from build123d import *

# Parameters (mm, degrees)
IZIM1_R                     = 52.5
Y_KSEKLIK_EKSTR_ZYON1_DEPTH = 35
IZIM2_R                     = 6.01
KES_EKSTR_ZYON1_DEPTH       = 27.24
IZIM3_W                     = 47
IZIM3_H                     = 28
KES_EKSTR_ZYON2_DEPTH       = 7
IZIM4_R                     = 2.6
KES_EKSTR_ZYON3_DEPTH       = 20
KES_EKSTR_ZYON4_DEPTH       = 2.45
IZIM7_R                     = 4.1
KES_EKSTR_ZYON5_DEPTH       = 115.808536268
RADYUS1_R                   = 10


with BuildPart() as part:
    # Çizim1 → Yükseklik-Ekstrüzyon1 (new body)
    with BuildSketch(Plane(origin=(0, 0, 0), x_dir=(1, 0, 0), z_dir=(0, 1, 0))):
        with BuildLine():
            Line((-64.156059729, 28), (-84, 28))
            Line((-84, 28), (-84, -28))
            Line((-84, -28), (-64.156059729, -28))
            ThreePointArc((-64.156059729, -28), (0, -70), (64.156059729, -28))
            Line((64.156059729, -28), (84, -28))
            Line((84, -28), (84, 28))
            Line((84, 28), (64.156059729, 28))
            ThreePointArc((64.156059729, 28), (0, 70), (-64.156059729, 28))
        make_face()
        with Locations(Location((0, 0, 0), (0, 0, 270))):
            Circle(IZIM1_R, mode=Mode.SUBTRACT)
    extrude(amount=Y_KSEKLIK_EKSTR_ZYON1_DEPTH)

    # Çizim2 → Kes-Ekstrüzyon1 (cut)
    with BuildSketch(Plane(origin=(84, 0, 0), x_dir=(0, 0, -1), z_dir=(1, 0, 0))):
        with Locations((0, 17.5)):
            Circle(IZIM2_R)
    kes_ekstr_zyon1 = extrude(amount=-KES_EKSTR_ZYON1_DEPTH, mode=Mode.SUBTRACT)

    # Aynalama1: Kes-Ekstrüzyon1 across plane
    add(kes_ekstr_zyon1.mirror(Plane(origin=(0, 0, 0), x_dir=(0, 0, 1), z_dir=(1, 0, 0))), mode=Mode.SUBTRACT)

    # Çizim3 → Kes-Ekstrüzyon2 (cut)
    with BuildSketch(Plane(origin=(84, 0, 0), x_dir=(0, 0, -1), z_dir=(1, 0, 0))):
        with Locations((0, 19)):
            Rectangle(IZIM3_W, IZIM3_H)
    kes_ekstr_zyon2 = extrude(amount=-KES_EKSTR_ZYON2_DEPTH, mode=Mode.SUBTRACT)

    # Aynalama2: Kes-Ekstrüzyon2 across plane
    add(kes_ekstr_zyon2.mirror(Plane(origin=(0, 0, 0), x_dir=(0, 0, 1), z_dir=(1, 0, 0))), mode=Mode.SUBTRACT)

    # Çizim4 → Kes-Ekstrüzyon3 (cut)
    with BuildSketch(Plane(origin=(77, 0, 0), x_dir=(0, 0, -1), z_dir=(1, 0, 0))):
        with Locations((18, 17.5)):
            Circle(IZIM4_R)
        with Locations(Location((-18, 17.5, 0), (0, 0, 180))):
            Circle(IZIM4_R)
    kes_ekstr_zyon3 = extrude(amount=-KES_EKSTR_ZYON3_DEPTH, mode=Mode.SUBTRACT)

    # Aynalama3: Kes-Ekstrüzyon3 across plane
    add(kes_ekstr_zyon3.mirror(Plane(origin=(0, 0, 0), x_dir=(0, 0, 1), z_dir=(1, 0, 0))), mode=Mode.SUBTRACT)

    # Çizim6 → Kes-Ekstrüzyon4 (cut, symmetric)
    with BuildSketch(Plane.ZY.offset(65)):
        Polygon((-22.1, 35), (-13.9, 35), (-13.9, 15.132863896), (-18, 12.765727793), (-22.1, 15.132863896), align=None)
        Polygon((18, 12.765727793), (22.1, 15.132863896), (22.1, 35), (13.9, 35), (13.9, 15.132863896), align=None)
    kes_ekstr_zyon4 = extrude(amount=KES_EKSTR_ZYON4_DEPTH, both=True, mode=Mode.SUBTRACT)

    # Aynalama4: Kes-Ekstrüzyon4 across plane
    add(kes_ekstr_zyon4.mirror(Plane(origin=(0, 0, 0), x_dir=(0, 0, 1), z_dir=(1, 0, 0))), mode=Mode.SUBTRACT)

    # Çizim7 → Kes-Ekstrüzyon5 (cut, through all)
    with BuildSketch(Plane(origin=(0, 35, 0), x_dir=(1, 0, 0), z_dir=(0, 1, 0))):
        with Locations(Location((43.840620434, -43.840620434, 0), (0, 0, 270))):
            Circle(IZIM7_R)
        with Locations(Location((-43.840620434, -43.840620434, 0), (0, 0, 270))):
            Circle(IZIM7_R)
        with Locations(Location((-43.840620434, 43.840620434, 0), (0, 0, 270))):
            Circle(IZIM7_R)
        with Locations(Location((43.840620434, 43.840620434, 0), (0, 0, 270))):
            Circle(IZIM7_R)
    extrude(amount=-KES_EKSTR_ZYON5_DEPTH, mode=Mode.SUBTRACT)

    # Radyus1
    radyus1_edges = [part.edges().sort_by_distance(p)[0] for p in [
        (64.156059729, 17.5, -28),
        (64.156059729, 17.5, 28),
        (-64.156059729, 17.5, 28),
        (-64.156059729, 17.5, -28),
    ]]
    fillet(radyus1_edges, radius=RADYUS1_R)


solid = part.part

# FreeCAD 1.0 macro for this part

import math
import FreeCAD as App
import Part
import Sketcher
Q = App.Units.Quantity


def edges_at(feature, points):
    """Names of the edges that pass closest to the given points."""
    edges = feature.Shape.Edges
    near = lambda p: min(range(len(edges)), key=lambda i: edges[i].distToShape(Part.Vertex(*p))[0])
    return sorted({f"Edge{near(p) + 1}" for p in points})

doc = App.newDocument("Part")
body = doc.addObject("PartDesign::Body", "Body")

# Sketch on XZ plane
sketch1 = body.newObject("Sketcher::SketchObject", "Sketch")
sketch1.AttachmentSupport = (doc.getObject("XZ_Plane"), [""])
sketch1.MapMode = "FlatFace"
sketch1.addGeometry([
    Part.LineSegment(App.Vector(-64, -28, 0), App.Vector(-84, -28, 0)),  # 0
    Part.LineSegment(App.Vector(-84, -28, 0), App.Vector(-84, 28, 0)),  # 1
    Part.LineSegment(App.Vector(-84, 28, 0), App.Vector(-64, 28, 0)),  # 2
    Part.ArcOfCircle(Part.Circle(App.Vector(0, 0, 0), App.Vector(0, 0, 1), 70), math.radians(24), math.radians(156)),  # 3
    Part.LineSegment(App.Vector(64, 28, 0), App.Vector(84, 28, 0)),  # 4
    Part.LineSegment(App.Vector(84, 28, 0), App.Vector(84, -28, 0)),  # 5
    Part.LineSegment(App.Vector(84, -28, 0), App.Vector(64, -28, 0)),  # 6
    Part.ArcOfCircle(Part.Circle(App.Vector(0, 0, 0), App.Vector(0, 0, 1), 70), math.radians(-156), math.radians(-24)),  # 7
    Part.Circle(App.Vector(0, 0, 0), App.Vector(0, 0, 1), 52),  # 8
], False)
sketch1.addConstraint([
    Sketcher.Constraint("Coincident", 0, 2, 1, 1),
    Sketcher.Constraint("Coincident", 1, 2, 2, 1),
    Sketcher.Constraint("Coincident", 2, 2, 3, 2),
    Sketcher.Constraint("Coincident", 3, 1, 4, 1),
    Sketcher.Constraint("Coincident", 4, 2, 5, 1),
    Sketcher.Constraint("Coincident", 5, 2, 6, 1),
    Sketcher.Constraint("Coincident", 6, 2, 7, 2),
    Sketcher.Constraint("Coincident", 7, 1, 0, 1),
    Sketcher.Constraint("Horizontal", 0),
    Sketcher.Constraint("Vertical", 1),
    Sketcher.Constraint("Horizontal", 2),
    Sketcher.Constraint("Horizontal", 4),
    Sketcher.Constraint("Vertical", 5),
    Sketcher.Constraint("Horizontal", 6),
    Sketcher.Constraint("Coincident", 3, 3, -1, 1),
    Sketcher.Constraint("Coincident", 7, 3, -1, 1),
    Sketcher.Constraint("Coincident", 8, 3, -1, 1),
    Sketcher.Constraint("Equal", 3, 7),
    Sketcher.Constraint("Symmetric", 0, 2, 4, 2, -1, 1),
    Sketcher.Constraint("Horizontal", 2, 2, 3, 1),
    Sketcher.Constraint("Horizontal", 0, 2, 5, 2),
    Sketcher.Constraint("Diameter", 8, 105.0),
    Sketcher.Constraint("Radius", 3, 70.0),
    Sketcher.Constraint("DistanceY", 1, 1, 1, 2, 56.0),
    Sketcher.Constraint("DistanceX", 0, 2, -1, 1, 84.0),
])
pad1 = body.newObject("PartDesign::Pad", "Pad")
pad1.Profile = sketch1
pad1.Length = 35
pad1.Reversed = True

# Sketch on YZ plane
sketch2 = body.newObject("Sketcher::SketchObject", "Sketch001")
sketch2.AttachmentSupport = (doc.getObject("YZ_Plane"), [""])
sketch2.MapMode = "FlatFace"
sketch2.AttachmentOffset = App.Placement(App.Vector(0, 0, 84), App.Rotation())
sketch2.addGeometry(Part.Circle(App.Vector(18, 0, 0), App.Vector(0, 0, 1), 6), False)
sketch2.addConstraint([
    Sketcher.Constraint("PointOnObject", 0, 3, -1),
    Sketcher.Constraint("Diameter", 0, 12.02),
    Sketcher.Constraint("DistanceX", -1, 1, 0, 3, 17.5),
])
pocket1 = body.newObject("PartDesign::Pocket", "Pocket")
pocket1.Profile = sketch2
pocket1.Length = 27.24
doc.recompute()

mirrored = body.newObject("PartDesign::Mirrored", "Mirrored")
mirrored.Originals = [pocket1]
mirrored.MirrorPlane = (doc.getObject("YZ_Plane"), [""])
body.Tip = mirrored

# Sketch on YZ plane
sketch3 = body.newObject("Sketcher::SketchObject", "Sketch002")
sketch3.AttachmentSupport = (doc.getObject("YZ_Plane"), [""])
sketch3.MapMode = "FlatFace"
sketch3.AttachmentOffset = App.Placement(App.Vector(0, 0, 84), App.Rotation())
sketch3.addGeometry([
    Part.LineSegment(App.Vector(33, 24, 0), App.Vector(5, 24, 0)),
    Part.LineSegment(App.Vector(5, 24, 0), App.Vector(5, -24, 0)),
    Part.LineSegment(App.Vector(5, -24, 0), App.Vector(33, -24, 0)),
    Part.LineSegment(App.Vector(33, -24, 0), App.Vector(33, 24, 0)),
], False)
sketch3.addConstraint([
    Sketcher.Constraint("Coincident", 0, 2, 1, 1),
    Sketcher.Constraint("Coincident", 1, 2, 2, 1),
    Sketcher.Constraint("Coincident", 2, 2, 3, 1),
    Sketcher.Constraint("Coincident", 3, 2, 0, 1),
    Sketcher.Constraint("Horizontal", 0),
    Sketcher.Constraint("Vertical", 1),
    Sketcher.Constraint("Horizontal", 2),
    Sketcher.Constraint("Vertical", 3),
    Sketcher.Constraint("DistanceX", 0, 2, 0, 1, 28.0),
    Sketcher.Constraint("DistanceY", 1, 2, 1, 1, 47.0),
    Sketcher.Constraint("DistanceX", -1, 1, 0, 2, 5.0),
    Sketcher.Constraint("DistanceY", -1, 1, 0, 2, 23.5),
])
pocket2 = body.newObject("PartDesign::Pocket", "Pocket001")
pocket2.Profile = sketch3
pocket2.Length = 7
doc.recompute()

mirrored2 = body.newObject("PartDesign::Mirrored", "Mirrored001")
mirrored2.Originals = [pocket2]
mirrored2.MirrorPlane = (doc.getObject("YZ_Plane"), [""])
body.Tip = mirrored2

# Sketch on YZ plane
sketch4 = body.newObject("Sketcher::SketchObject", "Sketch003")
sketch4.AttachmentSupport = (doc.getObject("YZ_Plane"), [""])
sketch4.MapMode = "FlatFace"
sketch4.AttachmentOffset = App.Placement(App.Vector(0, 0, 77), App.Rotation())
sketch4.addGeometry([
    Part.Circle(App.Vector(17.5, -18, 0), App.Vector(0, 0, 1), 2.6),
    Part.Circle(App.Vector(17.5, 18, 0), App.Vector(0, 0, 1), 2.6),
], False)
sketch4.addConstraint([
    Sketcher.Constraint("Equal", 0, 1),
    Sketcher.Constraint("Symmetric", 0, 3, 1, 3, -1),
    Sketcher.Constraint("Diameter", 0, 5.2),
    Sketcher.Constraint("DistanceY", 0, 3, -1, 1, 18.0),
    Sketcher.Constraint("DistanceX", -1, 1, 0, 3, 17.5),
])
pocket3 = body.newObject("PartDesign::Pocket", "Pocket002")
pocket3.Profile = sketch4
pocket3.Length = 20
doc.recompute()

mirrored3 = body.newObject("PartDesign::Mirrored", "Mirrored002")
mirrored3.Originals = [pocket3]
mirrored3.MirrorPlane = (doc.getObject("YZ_Plane"), [""])
body.Tip = mirrored3

# Sketch on YZ plane
sketch5 = body.newObject("Sketcher::SketchObject", "Sketch004")
sketch5.AttachmentSupport = (doc.getObject("YZ_Plane"), [""])
sketch5.MapMode = "FlatFace"
sketch5.AttachmentOffset = App.Placement(App.Vector(0, 0, -65), App.Rotation())
sketch5.addGeometry([
    Part.LineSegment(App.Vector(35, -13.9, 0), App.Vector(35, -22.1, 0)),  # 0
    Part.LineSegment(App.Vector(35, -22.1, 0), App.Vector(15.1, -22.1, 0)),  # 1
    Part.LineSegment(App.Vector(15.1, -22.1, 0), App.Vector(12.8, -18, 0)),  # 2
    Part.LineSegment(App.Vector(12.8, -18, 0), App.Vector(15.1, -13.9, 0)),  # 3
    Part.LineSegment(App.Vector(15.1, -13.9, 0), App.Vector(35, -13.9, 0)),  # 4
    Part.LineSegment(App.Vector(12.8, 18, 0), App.Vector(15.1, 22.1, 0)),  # 5
    Part.LineSegment(App.Vector(15.1, 22.1, 0), App.Vector(35, 22.1, 0)),  # 6
    Part.LineSegment(App.Vector(35, 22.1, 0), App.Vector(35, 13.9, 0)),  # 7
    Part.LineSegment(App.Vector(35, 13.9, 0), App.Vector(15.1, 13.9, 0)),  # 8
    Part.LineSegment(App.Vector(15.1, 13.9, 0), App.Vector(12.8, 18, 0)),  # 9
], False)
sketch5.addConstraint([
    Sketcher.Constraint("Coincident", 0, 2, 1, 1),
    Sketcher.Constraint("Coincident", 1, 2, 2, 1),
    Sketcher.Constraint("Coincident", 2, 2, 3, 1),
    Sketcher.Constraint("Coincident", 3, 2, 4, 1),
    Sketcher.Constraint("Coincident", 4, 2, 0, 1),
    Sketcher.Constraint("Coincident", 5, 2, 6, 1),
    Sketcher.Constraint("Coincident", 6, 2, 7, 1),
    Sketcher.Constraint("Coincident", 7, 2, 8, 1),
    Sketcher.Constraint("Coincident", 8, 2, 9, 1),
    Sketcher.Constraint("Coincident", 9, 2, 5, 1),
    Sketcher.Constraint("Vertical", 0),
    Sketcher.Constraint("Horizontal", 1),
    Sketcher.Constraint("Horizontal", 4),
    Sketcher.Constraint("Horizontal", 6),
    Sketcher.Constraint("Vertical", 7),
    Sketcher.Constraint("Horizontal", 8),
    Sketcher.Constraint("Symmetric", 1, 2, 5, 2, -1),
    Sketcher.Constraint("Symmetric", 4, 2, 7, 2, -1),
    Sketcher.Constraint("Symmetric", 2, 2, 9, 2, -1),
    Sketcher.Constraint("Parallel", 3, 5),
    Sketcher.Constraint("Parallel", 2, 9),
    Sketcher.Constraint("Vertical", 1, 2, 3, 2),
    Sketcher.Constraint("Angle", 2, Q("120 deg")),
    Sketcher.Constraint("DistanceY", 0, 2, 0, 1, 8.2),
    Sketcher.Constraint("DistanceX", -1, 1, 0, 2, 35.0),
    Sketcher.Constraint("DistanceY", 2, 2, -1, 1, 18.0),
    Sketcher.Constraint("DistanceX", 1, 2, 1, 1, 19.867136),
])
pocket4 = body.newObject("PartDesign::Pocket", "Pocket003")
pocket4.Profile = sketch5
pocket4.Length = 4.9
pocket4.Midplane = True
doc.recompute()

mirrored4 = body.newObject("PartDesign::Mirrored", "Mirrored003")
mirrored4.Originals = [pocket4]
mirrored4.MirrorPlane = (doc.getObject("YZ_Plane"), [""])
body.Tip = mirrored4

# Sketch on XZ plane
sketch6 = body.newObject("Sketcher::SketchObject", "Sketch005")
sketch6.AttachmentSupport = (doc.getObject("XZ_Plane"), [""])
sketch6.MapMode = "FlatFace"
sketch6.AttachmentOffset = App.Placement(App.Vector(0, 0, -35), App.Rotation())
sketch6.addGeometry([
    Part.Circle(App.Vector(43.8, 43.8, 0), App.Vector(0, 0, 1), 4.1),
    Part.Circle(App.Vector(-43.8, 43.8, 0), App.Vector(0, 0, 1), 4.1),
    Part.Circle(App.Vector(-43.8, -43.8, 0), App.Vector(0, 0, 1), 4.1),
    Part.Circle(App.Vector(43.8, -43.8, 0), App.Vector(0, 0, 1), 4.1),
], False)
sketch6.addConstraint([
    Sketcher.Constraint("Equal", 0, 1),
    Sketcher.Constraint("Equal", 1, 2),
    Sketcher.Constraint("Equal", 2, 3),
    Sketcher.Constraint("Symmetric", 0, 3, 2, 3, -1, 1),
    Sketcher.Constraint("Symmetric", 1, 3, 3, 3, -1, 1),
    Sketcher.Constraint("Symmetric", 0, 3, 1, 3, -2),
    Sketcher.Constraint("Diameter", 0, 8.2),
    Sketcher.Constraint("DistanceX", -1, 1, 0, 3, 43.84062),
    Sketcher.Constraint("DistanceY", -1, 1, 0, 3, 43.84062),
])
pocket5 = body.newObject("PartDesign::Pocket", "Pocket004")
pocket5.Profile = sketch6
pocket5.Type = "ThroughAll"
pocket5.Reversed = True
doc.recompute()

fillet = body.newObject("PartDesign::Fillet", "Fillet")
fillet.Base = (pocket5, edges_at(pocket5, [
    (64.156, 17.5, -28),
    (64.156, 17.5, 28),
    (-64.156, 17.5, 28),
    (-64.156, 17.5, -28),
]))
fillet.Radius = 10

doc.recompute()
